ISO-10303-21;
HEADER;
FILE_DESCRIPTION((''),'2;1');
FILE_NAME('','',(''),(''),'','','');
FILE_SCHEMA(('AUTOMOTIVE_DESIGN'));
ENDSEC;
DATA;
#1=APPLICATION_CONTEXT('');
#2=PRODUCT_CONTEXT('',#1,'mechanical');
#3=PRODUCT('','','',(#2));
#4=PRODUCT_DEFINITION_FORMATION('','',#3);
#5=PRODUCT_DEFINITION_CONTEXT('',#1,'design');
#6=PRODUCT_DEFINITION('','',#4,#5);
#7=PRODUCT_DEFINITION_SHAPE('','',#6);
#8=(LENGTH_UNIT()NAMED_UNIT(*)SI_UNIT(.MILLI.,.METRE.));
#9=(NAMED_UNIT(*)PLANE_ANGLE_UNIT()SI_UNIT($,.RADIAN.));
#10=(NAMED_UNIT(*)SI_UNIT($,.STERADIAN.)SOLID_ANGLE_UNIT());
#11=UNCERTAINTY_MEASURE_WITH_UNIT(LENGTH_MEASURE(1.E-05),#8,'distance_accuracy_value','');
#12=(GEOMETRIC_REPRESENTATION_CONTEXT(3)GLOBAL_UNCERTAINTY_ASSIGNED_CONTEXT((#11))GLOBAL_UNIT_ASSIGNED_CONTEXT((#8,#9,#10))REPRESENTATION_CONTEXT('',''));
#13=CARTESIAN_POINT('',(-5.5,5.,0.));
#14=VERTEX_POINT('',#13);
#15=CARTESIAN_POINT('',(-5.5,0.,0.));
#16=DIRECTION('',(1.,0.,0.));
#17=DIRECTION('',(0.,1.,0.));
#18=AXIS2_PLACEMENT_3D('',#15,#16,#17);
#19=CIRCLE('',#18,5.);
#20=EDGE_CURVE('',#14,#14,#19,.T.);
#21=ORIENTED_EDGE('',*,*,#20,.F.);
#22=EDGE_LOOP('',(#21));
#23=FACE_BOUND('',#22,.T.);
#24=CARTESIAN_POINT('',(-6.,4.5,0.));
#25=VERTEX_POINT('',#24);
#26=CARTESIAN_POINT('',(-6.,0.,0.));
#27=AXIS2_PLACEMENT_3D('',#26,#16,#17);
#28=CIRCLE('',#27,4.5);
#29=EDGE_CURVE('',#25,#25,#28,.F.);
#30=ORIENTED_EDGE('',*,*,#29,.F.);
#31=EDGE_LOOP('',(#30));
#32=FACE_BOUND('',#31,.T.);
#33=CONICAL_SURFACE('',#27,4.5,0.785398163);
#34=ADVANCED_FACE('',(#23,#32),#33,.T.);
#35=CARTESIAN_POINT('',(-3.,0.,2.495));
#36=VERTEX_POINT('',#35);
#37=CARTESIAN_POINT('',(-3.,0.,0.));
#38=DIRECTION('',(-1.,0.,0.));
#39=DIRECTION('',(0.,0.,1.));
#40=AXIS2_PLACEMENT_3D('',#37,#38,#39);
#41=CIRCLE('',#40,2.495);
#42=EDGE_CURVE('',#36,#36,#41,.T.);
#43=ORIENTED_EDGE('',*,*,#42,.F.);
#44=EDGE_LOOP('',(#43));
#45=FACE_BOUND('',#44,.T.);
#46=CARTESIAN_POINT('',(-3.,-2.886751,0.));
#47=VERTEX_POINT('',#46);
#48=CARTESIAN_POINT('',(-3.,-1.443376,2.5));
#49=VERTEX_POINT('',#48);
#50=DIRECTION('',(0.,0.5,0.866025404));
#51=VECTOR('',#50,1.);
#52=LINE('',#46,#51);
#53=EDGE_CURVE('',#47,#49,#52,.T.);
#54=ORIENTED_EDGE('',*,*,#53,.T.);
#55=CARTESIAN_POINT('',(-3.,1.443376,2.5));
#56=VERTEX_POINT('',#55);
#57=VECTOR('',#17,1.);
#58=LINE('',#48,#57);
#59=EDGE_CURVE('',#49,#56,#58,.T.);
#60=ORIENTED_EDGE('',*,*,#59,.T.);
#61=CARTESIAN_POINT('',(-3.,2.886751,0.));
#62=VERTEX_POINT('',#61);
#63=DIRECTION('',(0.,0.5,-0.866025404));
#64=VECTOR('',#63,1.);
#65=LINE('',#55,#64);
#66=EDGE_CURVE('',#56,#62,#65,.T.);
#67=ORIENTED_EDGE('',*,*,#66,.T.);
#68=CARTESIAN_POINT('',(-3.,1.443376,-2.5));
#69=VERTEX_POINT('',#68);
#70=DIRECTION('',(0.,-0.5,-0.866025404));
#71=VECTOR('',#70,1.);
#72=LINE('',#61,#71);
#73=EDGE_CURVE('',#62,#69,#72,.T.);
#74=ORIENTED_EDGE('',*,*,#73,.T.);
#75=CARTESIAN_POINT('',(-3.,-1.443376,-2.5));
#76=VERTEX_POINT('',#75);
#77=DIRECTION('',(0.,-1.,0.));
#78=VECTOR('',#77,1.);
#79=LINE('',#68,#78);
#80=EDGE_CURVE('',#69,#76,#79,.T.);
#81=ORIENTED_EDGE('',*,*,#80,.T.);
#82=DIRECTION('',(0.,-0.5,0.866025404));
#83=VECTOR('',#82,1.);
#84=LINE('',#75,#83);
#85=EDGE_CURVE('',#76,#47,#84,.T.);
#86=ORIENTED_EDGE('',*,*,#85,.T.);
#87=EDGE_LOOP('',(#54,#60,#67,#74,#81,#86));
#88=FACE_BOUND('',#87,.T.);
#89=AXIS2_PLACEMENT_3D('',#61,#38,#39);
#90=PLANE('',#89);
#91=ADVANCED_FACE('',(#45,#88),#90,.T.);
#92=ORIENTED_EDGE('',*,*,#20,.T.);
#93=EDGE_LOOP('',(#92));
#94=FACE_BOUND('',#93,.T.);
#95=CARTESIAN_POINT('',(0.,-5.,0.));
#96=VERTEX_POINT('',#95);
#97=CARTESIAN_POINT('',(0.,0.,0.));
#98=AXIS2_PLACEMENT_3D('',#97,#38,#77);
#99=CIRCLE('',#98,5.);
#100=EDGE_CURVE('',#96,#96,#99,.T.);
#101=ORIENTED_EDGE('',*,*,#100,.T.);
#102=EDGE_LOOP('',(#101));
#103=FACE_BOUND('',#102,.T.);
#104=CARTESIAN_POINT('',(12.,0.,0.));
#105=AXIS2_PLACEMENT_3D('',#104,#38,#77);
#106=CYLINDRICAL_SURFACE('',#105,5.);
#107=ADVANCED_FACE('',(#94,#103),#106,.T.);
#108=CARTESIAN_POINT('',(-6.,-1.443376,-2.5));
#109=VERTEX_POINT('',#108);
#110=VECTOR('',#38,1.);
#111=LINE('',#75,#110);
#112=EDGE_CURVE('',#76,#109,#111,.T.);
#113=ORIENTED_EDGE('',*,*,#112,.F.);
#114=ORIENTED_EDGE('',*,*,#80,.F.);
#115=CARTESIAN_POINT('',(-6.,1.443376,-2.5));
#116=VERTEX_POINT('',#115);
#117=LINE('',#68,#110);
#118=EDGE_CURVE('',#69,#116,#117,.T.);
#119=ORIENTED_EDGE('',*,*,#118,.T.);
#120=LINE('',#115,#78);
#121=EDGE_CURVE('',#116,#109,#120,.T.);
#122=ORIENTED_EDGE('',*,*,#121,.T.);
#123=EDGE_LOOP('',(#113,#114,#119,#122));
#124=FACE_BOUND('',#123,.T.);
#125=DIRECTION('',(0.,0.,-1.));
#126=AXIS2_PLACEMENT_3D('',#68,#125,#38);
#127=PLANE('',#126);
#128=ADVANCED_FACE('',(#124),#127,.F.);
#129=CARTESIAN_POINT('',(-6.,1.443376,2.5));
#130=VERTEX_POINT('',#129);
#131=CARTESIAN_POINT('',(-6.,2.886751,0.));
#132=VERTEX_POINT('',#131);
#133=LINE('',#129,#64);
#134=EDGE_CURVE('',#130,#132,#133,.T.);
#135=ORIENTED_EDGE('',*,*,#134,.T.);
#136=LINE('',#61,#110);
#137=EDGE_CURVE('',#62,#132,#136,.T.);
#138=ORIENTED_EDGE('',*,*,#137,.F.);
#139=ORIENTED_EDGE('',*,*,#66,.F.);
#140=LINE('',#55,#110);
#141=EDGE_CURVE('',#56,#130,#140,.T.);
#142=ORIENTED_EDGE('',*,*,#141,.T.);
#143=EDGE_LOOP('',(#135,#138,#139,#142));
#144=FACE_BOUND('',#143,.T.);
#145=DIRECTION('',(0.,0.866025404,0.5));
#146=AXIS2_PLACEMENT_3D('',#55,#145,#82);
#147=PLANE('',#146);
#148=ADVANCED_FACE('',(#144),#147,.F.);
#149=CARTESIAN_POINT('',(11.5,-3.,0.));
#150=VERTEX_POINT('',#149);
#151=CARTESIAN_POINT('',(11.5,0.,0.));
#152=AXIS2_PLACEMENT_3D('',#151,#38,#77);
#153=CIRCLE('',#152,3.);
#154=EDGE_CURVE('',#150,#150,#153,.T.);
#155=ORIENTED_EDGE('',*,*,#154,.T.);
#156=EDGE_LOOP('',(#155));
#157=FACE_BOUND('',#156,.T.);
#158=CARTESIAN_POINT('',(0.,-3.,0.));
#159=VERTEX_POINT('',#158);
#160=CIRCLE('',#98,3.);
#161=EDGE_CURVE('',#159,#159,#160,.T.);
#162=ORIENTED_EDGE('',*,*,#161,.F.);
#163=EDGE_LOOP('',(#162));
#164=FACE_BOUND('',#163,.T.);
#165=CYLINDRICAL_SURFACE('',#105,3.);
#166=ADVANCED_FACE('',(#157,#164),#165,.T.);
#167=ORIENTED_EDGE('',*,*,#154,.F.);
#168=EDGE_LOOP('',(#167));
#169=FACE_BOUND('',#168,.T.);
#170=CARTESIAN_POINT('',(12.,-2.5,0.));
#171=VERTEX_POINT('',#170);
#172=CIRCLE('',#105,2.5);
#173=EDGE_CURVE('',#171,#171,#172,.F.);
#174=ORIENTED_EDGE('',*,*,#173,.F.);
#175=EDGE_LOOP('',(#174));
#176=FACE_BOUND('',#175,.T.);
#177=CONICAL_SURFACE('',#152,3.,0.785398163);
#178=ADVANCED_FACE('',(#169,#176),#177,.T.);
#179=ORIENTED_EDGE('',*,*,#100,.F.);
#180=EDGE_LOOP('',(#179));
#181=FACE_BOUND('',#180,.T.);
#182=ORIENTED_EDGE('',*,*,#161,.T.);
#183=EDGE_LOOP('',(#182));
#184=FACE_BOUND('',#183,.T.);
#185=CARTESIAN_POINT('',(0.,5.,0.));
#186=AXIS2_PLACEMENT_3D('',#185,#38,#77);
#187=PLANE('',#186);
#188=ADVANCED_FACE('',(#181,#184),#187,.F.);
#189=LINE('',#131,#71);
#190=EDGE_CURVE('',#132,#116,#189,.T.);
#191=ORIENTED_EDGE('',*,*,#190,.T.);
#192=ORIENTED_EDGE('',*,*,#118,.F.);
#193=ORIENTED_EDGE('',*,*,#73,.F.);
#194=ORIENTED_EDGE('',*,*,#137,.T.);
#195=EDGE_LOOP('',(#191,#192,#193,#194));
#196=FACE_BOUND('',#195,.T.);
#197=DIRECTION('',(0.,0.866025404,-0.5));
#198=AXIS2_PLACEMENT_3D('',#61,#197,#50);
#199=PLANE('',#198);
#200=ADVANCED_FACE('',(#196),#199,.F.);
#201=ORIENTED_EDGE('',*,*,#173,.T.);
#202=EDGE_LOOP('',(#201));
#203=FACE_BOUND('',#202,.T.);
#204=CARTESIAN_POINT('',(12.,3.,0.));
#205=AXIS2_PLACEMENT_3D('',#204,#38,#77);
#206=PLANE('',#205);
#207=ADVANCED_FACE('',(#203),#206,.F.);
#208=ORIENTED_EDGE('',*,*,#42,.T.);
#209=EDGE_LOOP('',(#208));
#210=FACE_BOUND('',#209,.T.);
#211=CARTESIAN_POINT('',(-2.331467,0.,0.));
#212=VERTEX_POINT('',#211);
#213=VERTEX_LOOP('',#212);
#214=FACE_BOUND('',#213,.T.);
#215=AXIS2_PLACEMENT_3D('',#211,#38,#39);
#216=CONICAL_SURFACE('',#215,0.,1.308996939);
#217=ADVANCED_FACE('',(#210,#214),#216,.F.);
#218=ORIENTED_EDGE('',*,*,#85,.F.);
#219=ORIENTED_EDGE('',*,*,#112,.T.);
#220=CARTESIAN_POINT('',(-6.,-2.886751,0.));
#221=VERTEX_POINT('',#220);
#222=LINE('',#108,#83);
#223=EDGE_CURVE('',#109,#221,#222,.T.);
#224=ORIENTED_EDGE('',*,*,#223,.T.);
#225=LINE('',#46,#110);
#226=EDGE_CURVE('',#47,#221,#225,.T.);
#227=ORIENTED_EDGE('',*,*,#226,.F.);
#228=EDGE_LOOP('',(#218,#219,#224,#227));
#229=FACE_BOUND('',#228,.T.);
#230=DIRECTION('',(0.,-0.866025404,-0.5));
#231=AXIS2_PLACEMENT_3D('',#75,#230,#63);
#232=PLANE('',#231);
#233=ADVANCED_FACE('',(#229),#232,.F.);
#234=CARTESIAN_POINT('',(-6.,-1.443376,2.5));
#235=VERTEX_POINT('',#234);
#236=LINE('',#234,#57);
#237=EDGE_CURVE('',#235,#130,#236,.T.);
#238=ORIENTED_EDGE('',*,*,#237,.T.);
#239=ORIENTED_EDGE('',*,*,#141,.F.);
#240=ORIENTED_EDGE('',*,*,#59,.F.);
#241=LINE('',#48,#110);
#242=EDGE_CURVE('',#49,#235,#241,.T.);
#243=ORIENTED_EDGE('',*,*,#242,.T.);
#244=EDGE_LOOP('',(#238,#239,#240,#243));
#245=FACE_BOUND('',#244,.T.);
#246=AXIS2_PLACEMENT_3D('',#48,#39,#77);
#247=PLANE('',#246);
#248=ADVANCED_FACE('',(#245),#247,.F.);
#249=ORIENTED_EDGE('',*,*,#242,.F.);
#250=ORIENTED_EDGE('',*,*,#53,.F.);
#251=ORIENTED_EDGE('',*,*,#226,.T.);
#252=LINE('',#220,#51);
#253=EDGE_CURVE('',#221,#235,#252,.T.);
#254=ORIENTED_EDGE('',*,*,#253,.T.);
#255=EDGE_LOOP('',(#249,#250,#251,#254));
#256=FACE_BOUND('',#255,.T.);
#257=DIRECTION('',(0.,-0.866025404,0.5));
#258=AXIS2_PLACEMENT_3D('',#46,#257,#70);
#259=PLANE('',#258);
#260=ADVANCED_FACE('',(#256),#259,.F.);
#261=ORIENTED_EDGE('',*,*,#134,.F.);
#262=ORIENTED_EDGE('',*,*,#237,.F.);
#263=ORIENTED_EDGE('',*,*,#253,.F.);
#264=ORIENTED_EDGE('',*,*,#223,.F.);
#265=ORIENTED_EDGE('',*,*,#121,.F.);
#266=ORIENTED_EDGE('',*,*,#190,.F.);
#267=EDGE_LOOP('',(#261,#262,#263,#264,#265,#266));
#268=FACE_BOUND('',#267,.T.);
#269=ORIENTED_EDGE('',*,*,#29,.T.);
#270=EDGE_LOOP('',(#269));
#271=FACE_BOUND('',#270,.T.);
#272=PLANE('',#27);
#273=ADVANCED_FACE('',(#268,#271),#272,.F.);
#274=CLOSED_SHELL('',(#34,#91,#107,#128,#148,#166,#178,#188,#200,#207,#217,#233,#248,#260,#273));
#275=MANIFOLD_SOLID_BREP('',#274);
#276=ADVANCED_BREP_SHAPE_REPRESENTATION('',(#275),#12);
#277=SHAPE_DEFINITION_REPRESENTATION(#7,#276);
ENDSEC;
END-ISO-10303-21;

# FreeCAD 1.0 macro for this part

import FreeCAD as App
import Part
import Sketcher

V = App.Vector
Q = App.Units.Quantity


def edges_at(feature, points):
    """Names of the edges that pass closest to the given points."""
    edges = feature.Shape.Edges
    near = lambda p: min(range(len(edges)), key=lambda i: edges[i].distToShape(Part.Vertex(*p))[0])
    return sorted({f"Edge{near(p) + 1}" for p in points})

doc = App.newDocument("Part")
body = doc.addObject("PartDesign::Body", "Body")

# Sketch on XY plane
sketch1 = doc.addObject("Sketcher::SketchObject", "Sketch")
body.addObject(sketch1)
sketch1.AttachmentSupport = (doc.XY_Plane, [""])
sketch1.MapMode = "FlatFace"
sketch1.addGeometry([
    Part.LineSegment(V(-6, 5, 0), V(-6, 0, 0)),  # 0
    Part.LineSegment(V(-6, 0, 0), V(12, 0, 0)),  # 1
    Part.LineSegment(V(12, 0, 0), V(12, 3, 0)),  # 2
    Part.LineSegment(V(12, 3, 0), V(0, 3, 0)),  # 3
    Part.LineSegment(V(0, 3, 0), V(0, 5, 0)),  # 4
    Part.LineSegment(V(0, 5, 0), V(-6, 5, 0)),  # 5
], False)
sketch1.addConstraint([
    Sketcher.Constraint("Coincident", 0, 2, 1, 1),
    Sketcher.Constraint("Coincident", 1, 2, 2, 1),
    Sketcher.Constraint("Coincident", 2, 2, 3, 1),
    Sketcher.Constraint("Coincident", 3, 2, 4, 1),
    Sketcher.Constraint("Coincident", 4, 2, 5, 1),
    Sketcher.Constraint("Coincident", 5, 2, 0, 1),
    Sketcher.Constraint("Vertical", 0),
    Sketcher.Constraint("Horizontal", 1),
    Sketcher.Constraint("Vertical", 2),
    Sketcher.Constraint("Horizontal", 3),
    Sketcher.Constraint("Vertical", 4),
    Sketcher.Constraint("Horizontal", 5),
    Sketcher.Constraint("PointOnObject", 0, 2, -1),
    Sketcher.Constraint("PointOnObject", 3, 2, -2),
    Sketcher.Constraint("DistanceX", 1, 1, 1, 2, Q("18 mm")),
    Sketcher.Constraint("DistanceX", 3, 2, 3, 1, Q("12 mm")),
    Sketcher.Constraint("DistanceY", 0, 2, 0, 1, Q("5 mm")),
    Sketcher.Constraint("DistanceY", 2, 1, 2, 2, Q("3 mm")),
])
revolution = doc.addObject("PartDesign::Revolution", "Revolution")
body.addObject(revolution)
revolution.Profile = sketch1
revolution.ReferenceAxis = (sketch1, ["H_Axis"])
revolution.Angle = 360

# Sketch on XY plane
sketch2 = doc.addObject("Sketcher::SketchObject", "Sketch001")
body.addObject(sketch2)
sketch2.AttachmentSupport = (doc.XY_Plane, [""])
sketch2.MapMode = "FlatFace"
sketch2.addGeometry([
    Part.LineSegment(V(-6, 2.495, 0), V(-6, 0, 0)),
    Part.LineSegment(V(-6, 0, 0), V(-2.331467, 0, 0)),
    Part.LineSegment(V(-2.331467, 0, 0), V(-3, 2.495, 0)),
    Part.LineSegment(V(-3, 2.495, 0), V(-6, 2.495, 0)),
], False)
sketch2.addConstraint([
    Sketcher.Constraint("Coincident", 0, 2, 1, 1),
    Sketcher.Constraint("Coincident", 1, 2, 2, 1),
    Sketcher.Constraint("Coincident", 2, 2, 3, 1),
    Sketcher.Constraint("Coincident", 3, 2, 0, 1),
    Sketcher.Constraint("Vertical", 0),
    Sketcher.Constraint("Horizontal", 1),
    Sketcher.Constraint("Horizontal", 3),
    Sketcher.Constraint("PointOnObject", 0, 2, -1),
    Sketcher.Constraint("DistanceX", 3, 2, 3, 1, Q("3 mm")),
    Sketcher.Constraint("Angle", 2, Q("105 deg")),
    Sketcher.Constraint("DistanceX", 0, 2, -1, 1, Q("6 mm")),
    Sketcher.Constraint("DistanceY", 0, 2, 0, 1, Q("2.495 mm")),
])
groove = doc.addObject("PartDesign::Groove", "Groove")
body.addObject(groove)
groove.Profile = sketch2
groove.ReferenceAxis = (sketch2, ["H_Axis"])
groove.Angle = 360

# Sketch on YZ plane
sketch3 = doc.addObject("Sketcher::SketchObject", "Sketch002")
body.addObject(sketch3)
sketch3.AttachmentSupport = (doc.YZ_Plane, [""])
sketch3.MapMode = "FlatFace"
sketch3.AttachmentOffset = App.Placement(V(0, 0, -6), App.Rotation())
sketch3.addGeometry([
    Part.LineSegment(V(2.886751, 0, 0), V(1.443376, -2.5, 0)),  # 0
    Part.LineSegment(V(1.443376, -2.5, 0), V(-1.443376, -2.5, 0)),  # 1
    Part.LineSegment(V(-1.443376, -2.5, 0), V(-2.886751, 0, 0)),  # 2
    Part.LineSegment(V(-2.886751, 0, 0), V(-1.443376, 2.5, 0)),  # 3
    Part.LineSegment(V(-1.443376, 2.5, 0), V(1.443376, 2.5, 0)),  # 4
    Part.LineSegment(V(1.443376, 2.5, 0), V(2.886751, 0, 0)),  # 5
], False)
sketch3.addConstraint([
    Sketcher.Constraint("Coincident", 0, 2, 1, 1),
    Sketcher.Constraint("Coincident", 1, 2, 2, 1),
    Sketcher.Constraint("Coincident", 2, 2, 3, 1),
    Sketcher.Constraint("Coincident", 3, 2, 4, 1),
    Sketcher.Constraint("Coincident", 4, 2, 5, 1),
    Sketcher.Constraint("Coincident", 5, 2, 0, 1),
    Sketcher.Constraint("Horizontal", 1),
    Sketcher.Constraint("Horizontal", 4),
    Sketcher.Constraint("Symmetric", 0, 2, 3, 2, -1, 1),
    Sketcher.Constraint("Symmetric", 2, 2, 5, 2, -1, 1),
    Sketcher.Constraint("PointOnObject", 2, 2, -1),
    Sketcher.Constraint("Parallel", 2, 5),
    Sketcher.Constraint("Vertical", 1, 2, 3, 2),
    Sketcher.Constraint("Angle", 0, Q("-120 deg")),
    Sketcher.Constraint("DistanceY", 1, 2, 3, 2, Q("5 mm")),
    Sketcher.Constraint("DistanceX", 1, 2, 1, 1, Q("2.886751 mm")),
])
pocket1 = doc.addObject("PartDesign::Pocket", "Pocket")
body.addObject(pocket1)
pocket1.Profile = sketch3
pocket1.Length = 3
pocket1.Reversed = True
doc.recompute()

chamfer = doc.addObject("PartDesign::Chamfer", "Chamfer")
body.addObject(chamfer)
chamfer.Base = (pocket1, edges_at(pocket1, [(12, 3, 0), (-6, 5, 0)]))
chamfer.Size = 0.5

doc.recompute()
